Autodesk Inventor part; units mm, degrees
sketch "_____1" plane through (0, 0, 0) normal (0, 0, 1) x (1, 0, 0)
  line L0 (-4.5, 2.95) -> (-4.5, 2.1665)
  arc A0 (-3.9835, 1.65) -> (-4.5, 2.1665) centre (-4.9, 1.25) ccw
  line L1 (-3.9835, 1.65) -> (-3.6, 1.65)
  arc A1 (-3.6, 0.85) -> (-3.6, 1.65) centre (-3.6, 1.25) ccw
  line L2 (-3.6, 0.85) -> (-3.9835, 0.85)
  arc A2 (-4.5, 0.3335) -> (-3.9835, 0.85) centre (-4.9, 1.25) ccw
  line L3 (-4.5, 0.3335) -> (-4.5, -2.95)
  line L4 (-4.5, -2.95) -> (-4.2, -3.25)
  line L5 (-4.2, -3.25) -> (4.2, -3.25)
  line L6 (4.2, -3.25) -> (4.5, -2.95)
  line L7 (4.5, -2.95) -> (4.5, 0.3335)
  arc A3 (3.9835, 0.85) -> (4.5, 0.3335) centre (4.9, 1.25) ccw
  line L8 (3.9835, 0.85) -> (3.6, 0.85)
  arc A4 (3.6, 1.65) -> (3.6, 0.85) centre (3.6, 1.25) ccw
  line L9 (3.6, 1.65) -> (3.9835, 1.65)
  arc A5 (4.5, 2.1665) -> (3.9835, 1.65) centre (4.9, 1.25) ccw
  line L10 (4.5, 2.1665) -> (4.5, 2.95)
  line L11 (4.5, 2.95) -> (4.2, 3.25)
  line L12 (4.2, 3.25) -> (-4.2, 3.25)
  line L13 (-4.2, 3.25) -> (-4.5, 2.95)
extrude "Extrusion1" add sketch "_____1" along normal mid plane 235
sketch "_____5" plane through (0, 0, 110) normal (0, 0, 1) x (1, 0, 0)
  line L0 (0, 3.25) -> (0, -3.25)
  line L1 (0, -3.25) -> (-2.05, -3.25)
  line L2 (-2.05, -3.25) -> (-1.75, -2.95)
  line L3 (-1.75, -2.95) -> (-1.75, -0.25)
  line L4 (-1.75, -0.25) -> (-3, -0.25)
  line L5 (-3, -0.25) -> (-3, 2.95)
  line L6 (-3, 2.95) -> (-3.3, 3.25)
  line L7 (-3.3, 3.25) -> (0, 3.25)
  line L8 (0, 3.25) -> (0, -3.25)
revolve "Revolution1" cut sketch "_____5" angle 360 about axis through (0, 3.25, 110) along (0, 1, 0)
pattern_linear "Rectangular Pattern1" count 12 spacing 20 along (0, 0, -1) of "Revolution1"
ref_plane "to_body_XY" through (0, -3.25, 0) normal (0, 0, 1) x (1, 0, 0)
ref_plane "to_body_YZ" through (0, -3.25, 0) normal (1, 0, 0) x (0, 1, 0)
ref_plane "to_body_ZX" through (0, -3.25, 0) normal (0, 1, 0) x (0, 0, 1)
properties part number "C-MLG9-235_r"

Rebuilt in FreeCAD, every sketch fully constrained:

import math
import FreeCAD as App
import Part
import Sketcher
Q = App.Units.Quantity

doc = App.newDocument("Part")
params = doc.addObject("Spreadsheet::Sheet", "Params")
for row, (alias, value) in enumerate([
    ("sketch1_radius", "1 mm"),
    ("sketch1_radius2", "0.4 mm"),
    ("sketch1_width", "8.4 mm"),
    ("pad1_length", "235 mm"),
    ("sketch2_width", "3.3 mm"),
    ("sketch2_height", "6.5 mm"),
    ("sketch2_height2", "3.2 mm"),
    ("sketch2_height3", "2.7 mm"),
    ("sketch2_width2", "1.25 mm"),
    ("groove_angle", "360 deg"),
    ("linearpattern_pitch", "20 mm"),
], start=1):
    params.set(f"A{row}", alias)
    params.set(f"B{row}", "=" + value)
    params.setAlias(f"B{row}", alias)

body = doc.addObject("PartDesign::Body", "Body")

# Sketch on XY plane
sketch1 = body.newObject("Sketcher::SketchObject", "Sketch")
sketch1.AttachmentSupport = (doc.getObject("XY_Plane"), [""])
sketch1.MapMode = "FlatFace"
sketch1.addGeometry([
    Part.LineSegment(App.Vector(-4.2, 3.25, 0), App.Vector(-4.5, 2.95, 0)),  # 0
    Part.LineSegment(App.Vector(-4.5, 2.95, 0), App.Vector(-4.5, 2.1665, 0)),  # 1
    Part.ArcOfCircle(Part.Circle(App.Vector(-4.9, 1.25, 0), App.Vector(0, 0, 1), 0.999986), math.radians(23.578525), math.radians(66.421475)),  # 2
    Part.LineSegment(App.Vector(-3.9835, 1.65, 0), App.Vector(-3.6, 1.65, 0)),  # 3
    Part.ArcOfCircle(Part.Circle(App.Vector(-3.6, 1.25, 0), App.Vector(0, 0, 1), 0.4), math.radians(-90), math.radians(90)),  # 4
    Part.LineSegment(App.Vector(-3.6, 0.85, 0), App.Vector(-3.9835, 0.85, 0)),  # 5
    Part.ArcOfCircle(Part.Circle(App.Vector(-4.9, 1.25, 0), App.Vector(0, 0, 1), 0.999986), math.radians(-66.421475), math.radians(-23.578525)),  # 6
    Part.LineSegment(App.Vector(-4.5, 0.3335, 0), App.Vector(-4.5, -2.95, 0)),  # 7
    Part.LineSegment(App.Vector(-4.5, -2.95, 0), App.Vector(-4.2, -3.25, 0)),  # 8
    Part.LineSegment(App.Vector(-4.2, -3.25, 0), App.Vector(4.2, -3.25, 0)),  # 9
    Part.LineSegment(App.Vector(4.2, -3.25, 0), App.Vector(4.5, -2.95, 0)),  # 10
    Part.LineSegment(App.Vector(4.5, -2.95, 0), App.Vector(4.5, 0.3335, 0)),  # 11
    Part.ArcOfCircle(Part.Circle(App.Vector(4.9, 1.25, 0), App.Vector(0, 0, 1), 0.999986), math.radians(-156.421475), math.radians(-113.578525)),  # 12
    Part.LineSegment(App.Vector(3.9835, 0.85, 0), App.Vector(3.6, 0.85, 0)),  # 13
    Part.ArcOfCircle(Part.Circle(App.Vector(3.6, 1.25, 0), App.Vector(0, 0, 1), 0.4), math.radians(90), math.radians(270)),  # 14
    Part.LineSegment(App.Vector(3.6, 1.65, 0), App.Vector(3.9835, 1.65, 0)),  # 15
    Part.ArcOfCircle(Part.Circle(App.Vector(4.9, 1.25, 0), App.Vector(0, 0, 1), 0.999986), math.radians(113.578525), math.radians(156.421475)),  # 16
    Part.LineSegment(App.Vector(4.5, 2.1665, 0), App.Vector(4.5, 2.95, 0)),  # 17
    Part.LineSegment(App.Vector(4.5, 2.95, 0), App.Vector(4.2, 3.25, 0)),  # 18
    Part.LineSegment(App.Vector(4.2, 3.25, 0), App.Vector(-4.2, 3.25, 0)),  # 19
], False)
sketch1.addConstraint([
    Sketcher.Constraint("Coincident", 0, 2, 1, 1),
    Sketcher.Constraint("Coincident", 1, 2, 2, 2),
    Sketcher.Constraint("Coincident", 2, 1, 3, 1),
    Sketcher.Constraint("Tangent", 3, 2, 4, 2),
    Sketcher.Constraint("Tangent", 4, 1, 5, 1),
    Sketcher.Constraint("Coincident", 5, 2, 6, 2),
    Sketcher.Constraint("Coincident", 6, 1, 7, 1),
    Sketcher.Constraint("Coincident", 7, 2, 8, 1),
    Sketcher.Constraint("Coincident", 8, 2, 9, 1),
    Sketcher.Constraint("Coincident", 9, 2, 10, 1),
    Sketcher.Constraint("Coincident", 10, 2, 11, 1),
    Sketcher.Constraint("Coincident", 11, 2, 12, 2),
    Sketcher.Constraint("Coincident", 12, 1, 13, 1),
    Sketcher.Constraint("Tangent", 13, 2, 14, 2),
    Sketcher.Constraint("Tangent", 14, 1, 15, 1),
    Sketcher.Constraint("Coincident", 15, 2, 16, 2),
    Sketcher.Constraint("Coincident", 16, 1, 17, 1),
    Sketcher.Constraint("Coincident", 17, 2, 18, 1),
    Sketcher.Constraint("Coincident", 18, 2, 19, 1),
    Sketcher.Constraint("Coincident", 19, 2, 0, 1),
    Sketcher.Constraint("Vertical", 1),
    Sketcher.Constraint("Horizontal", 3),
    Sketcher.Constraint("Horizontal", 5),
    Sketcher.Constraint("Vertical", 7),
    Sketcher.Constraint("Horizontal", 9),
    Sketcher.Constraint("Vertical", 11),
    Sketcher.Constraint("Horizontal", 13),
    Sketcher.Constraint("Horizontal", 15),
    Sketcher.Constraint("Vertical", 17),
    Sketcher.Constraint("Horizontal", 19),
    Sketcher.Constraint("Coincident", 6, 3, 2, 3),
    Sketcher.Constraint("Coincident", 16, 3, 12, 3),
    Sketcher.Constraint("Equal", 2, 6),
    Sketcher.Constraint("Equal", 6, 12),
    Sketcher.Constraint("Equal", 4, 14),
    Sketcher.Constraint("Equal", 12, 16),
    Sketcher.Constraint("Symmetric", 0, 2, 10, 2, -1, 1),
    Sketcher.Constraint("Symmetric", 7, 2, 17, 2, -1, 1),
    Sketcher.Constraint("Symmetric", 8, 2, 18, 2, -1, 1),
    Sketcher.Constraint("Symmetric", 2, 3, 12, 3, -2),
    Sketcher.Constraint("Symmetric", 4, 3, 14, 3, -2),
    Sketcher.Constraint("Symmetric", 7, 2, 10, 2, -2),
    Sketcher.Constraint("Perpendicular", 0, 8),
    Sketcher.Constraint("Perpendicular", 8, 10),
    Sketcher.Constraint("Horizontal", 2, 3, 4, 3),
    Sketcher.Constraint("Vertical", 9, 2, 18, 2),
    Sketcher.Constraint("Radius", 2, 1.0),
    Sketcher.Constraint("Radius", 4, 0.4),
    Sketcher.Constraint("DistanceX", 9, 1, 9, 2, 8.4),
    Sketcher.Constraint("DistanceY", 14, 3, 18, 2, 2.0),
    Sketcher.Constraint("DistanceX", 2, 3, -1, 1, 4.9),
    Sketcher.Constraint("DistanceX", 4, 3, -1, 1, 3.6),
    Sketcher.Constraint("DistanceX", 0, 2, -1, 1, 4.5),
    Sketcher.Constraint("DistanceY", 7, 2, 5, 2, 3.8),
])
sketch1.setExpression("Constraints[46]", "Params.sketch1_radius")
sketch1.setExpression("Constraints[47]", "Params.sketch1_radius2")
sketch1.setExpression("Constraints[48]", "Params.sketch1_width")
pad1 = body.newObject("PartDesign::Pad", "Pad")
pad1.Profile = sketch1
pad1.setExpression("Length", "Params.pad1_length")
pad1.Midplane = True

# Sketch on XY plane
sketch2 = body.newObject("Sketcher::SketchObject", "Sketch001")
sketch2.AttachmentSupport = (doc.getObject("XY_Plane"), [""])
sketch2.MapMode = "FlatFace"
sketch2.AttachmentOffset = App.Placement(App.Vector(0, 0, 110), App.Rotation())
sketch2.addGeometry([
    Part.LineSegment(App.Vector(0, -3.25, 0), App.Vector(0, 3.25, 0)),  # 0
    Part.LineSegment(App.Vector(0, 3.25, 0), App.Vector(-3.3, 3.25, 0)),  # 1
    Part.LineSegment(App.Vector(-3.3, 3.25, 0), App.Vector(-3, 2.95, 0)),  # 2
    Part.LineSegment(App.Vector(-3, 2.95, 0), App.Vector(-3, -0.25, 0)),  # 3
    Part.LineSegment(App.Vector(-3, -0.25, 0), App.Vector(-1.75, -0.25, 0)),  # 4
    Part.LineSegment(App.Vector(-1.75, -0.25, 0), App.Vector(-1.75, -2.95, 0)),  # 5
    Part.LineSegment(App.Vector(-1.75, -2.95, 0), App.Vector(-2.05, -3.25, 0)),  # 6
    Part.LineSegment(App.Vector(-2.05, -3.25, 0), App.Vector(0, -3.25, 0)),  # 7
], False)
sketch2.addConstraint([
    Sketcher.Constraint("Coincident", 0, 2, 1, 1),
    Sketcher.Constraint("Coincident", 1, 2, 2, 1),
    Sketcher.Constraint("Coincident", 2, 2, 3, 1),
    Sketcher.Constraint("Coincident", 3, 2, 4, 1),
    Sketcher.Constraint("Coincident", 4, 2, 5, 1),
    Sketcher.Constraint("Coincident", 5, 2, 6, 1),
    Sketcher.Constraint("Coincident", 6, 2, 7, 1),
    Sketcher.Constraint("Coincident", 7, 2, 0, 1),
    Sketcher.Constraint("Vertical", 0),
    Sketcher.Constraint("Horizontal", 1),
    Sketcher.Constraint("Vertical", 3),
    Sketcher.Constraint("Horizontal", 4),
    Sketcher.Constraint("Vertical", 5),
    Sketcher.Constraint("Horizontal", 7),
    Sketcher.Constraint("Symmetric", 0, 2, 7, 2, -1, 1),
    Sketcher.Constraint("Perpendicular", 2, 6),
    Sketcher.Constraint("Equal", 2, 6),
    Sketcher.Constraint("Angle", 2, Q("-45 deg")),
    Sketcher.Constraint("DistanceX", 1, 2, 1, 1, 3.3),
    Sketcher.Constraint("DistanceY", 0, 1, 0, 2, 6.5),
    Sketcher.Constraint("DistanceY", 3, 2, 3, 1, 3.2),
    Sketcher.Constraint("DistanceY", 5, 2, 5, 1, 2.7),
    Sketcher.Constraint("DistanceX", 4, 1, 4, 2, 1.25),
])
sketch2.setExpression("Constraints[18]", "Params.sketch2_width")
sketch2.setExpression("Constraints[19]", "Params.sketch2_height")
sketch2.setExpression("Constraints[20]", "Params.sketch2_height2")
sketch2.setExpression("Constraints[21]", "Params.sketch2_height3")
sketch2.setExpression("Constraints[22]", "Params.sketch2_width2")
groove = body.newObject("PartDesign::Groove", "Groove")
groove.Profile = sketch2
groove.ReferenceAxis = (sketch2, ["V_Axis"])
groove.setExpression("Angle", "Params.groove_angle")
doc.recompute()

linearpattern = body.newObject("PartDesign::LinearPattern", "LinearPattern")
linearpattern.Originals = [groove]
linearpattern.Direction = (doc.getObject("Z_Axis"), [""])
linearpattern.Mode = "offset"
linearpattern.setExpression("Offset", "Params.linearpattern_pitch")
linearpattern.Occurrences = 12
linearpattern.Reversed = True
body.Tip = linearpattern

doc.recompute()
